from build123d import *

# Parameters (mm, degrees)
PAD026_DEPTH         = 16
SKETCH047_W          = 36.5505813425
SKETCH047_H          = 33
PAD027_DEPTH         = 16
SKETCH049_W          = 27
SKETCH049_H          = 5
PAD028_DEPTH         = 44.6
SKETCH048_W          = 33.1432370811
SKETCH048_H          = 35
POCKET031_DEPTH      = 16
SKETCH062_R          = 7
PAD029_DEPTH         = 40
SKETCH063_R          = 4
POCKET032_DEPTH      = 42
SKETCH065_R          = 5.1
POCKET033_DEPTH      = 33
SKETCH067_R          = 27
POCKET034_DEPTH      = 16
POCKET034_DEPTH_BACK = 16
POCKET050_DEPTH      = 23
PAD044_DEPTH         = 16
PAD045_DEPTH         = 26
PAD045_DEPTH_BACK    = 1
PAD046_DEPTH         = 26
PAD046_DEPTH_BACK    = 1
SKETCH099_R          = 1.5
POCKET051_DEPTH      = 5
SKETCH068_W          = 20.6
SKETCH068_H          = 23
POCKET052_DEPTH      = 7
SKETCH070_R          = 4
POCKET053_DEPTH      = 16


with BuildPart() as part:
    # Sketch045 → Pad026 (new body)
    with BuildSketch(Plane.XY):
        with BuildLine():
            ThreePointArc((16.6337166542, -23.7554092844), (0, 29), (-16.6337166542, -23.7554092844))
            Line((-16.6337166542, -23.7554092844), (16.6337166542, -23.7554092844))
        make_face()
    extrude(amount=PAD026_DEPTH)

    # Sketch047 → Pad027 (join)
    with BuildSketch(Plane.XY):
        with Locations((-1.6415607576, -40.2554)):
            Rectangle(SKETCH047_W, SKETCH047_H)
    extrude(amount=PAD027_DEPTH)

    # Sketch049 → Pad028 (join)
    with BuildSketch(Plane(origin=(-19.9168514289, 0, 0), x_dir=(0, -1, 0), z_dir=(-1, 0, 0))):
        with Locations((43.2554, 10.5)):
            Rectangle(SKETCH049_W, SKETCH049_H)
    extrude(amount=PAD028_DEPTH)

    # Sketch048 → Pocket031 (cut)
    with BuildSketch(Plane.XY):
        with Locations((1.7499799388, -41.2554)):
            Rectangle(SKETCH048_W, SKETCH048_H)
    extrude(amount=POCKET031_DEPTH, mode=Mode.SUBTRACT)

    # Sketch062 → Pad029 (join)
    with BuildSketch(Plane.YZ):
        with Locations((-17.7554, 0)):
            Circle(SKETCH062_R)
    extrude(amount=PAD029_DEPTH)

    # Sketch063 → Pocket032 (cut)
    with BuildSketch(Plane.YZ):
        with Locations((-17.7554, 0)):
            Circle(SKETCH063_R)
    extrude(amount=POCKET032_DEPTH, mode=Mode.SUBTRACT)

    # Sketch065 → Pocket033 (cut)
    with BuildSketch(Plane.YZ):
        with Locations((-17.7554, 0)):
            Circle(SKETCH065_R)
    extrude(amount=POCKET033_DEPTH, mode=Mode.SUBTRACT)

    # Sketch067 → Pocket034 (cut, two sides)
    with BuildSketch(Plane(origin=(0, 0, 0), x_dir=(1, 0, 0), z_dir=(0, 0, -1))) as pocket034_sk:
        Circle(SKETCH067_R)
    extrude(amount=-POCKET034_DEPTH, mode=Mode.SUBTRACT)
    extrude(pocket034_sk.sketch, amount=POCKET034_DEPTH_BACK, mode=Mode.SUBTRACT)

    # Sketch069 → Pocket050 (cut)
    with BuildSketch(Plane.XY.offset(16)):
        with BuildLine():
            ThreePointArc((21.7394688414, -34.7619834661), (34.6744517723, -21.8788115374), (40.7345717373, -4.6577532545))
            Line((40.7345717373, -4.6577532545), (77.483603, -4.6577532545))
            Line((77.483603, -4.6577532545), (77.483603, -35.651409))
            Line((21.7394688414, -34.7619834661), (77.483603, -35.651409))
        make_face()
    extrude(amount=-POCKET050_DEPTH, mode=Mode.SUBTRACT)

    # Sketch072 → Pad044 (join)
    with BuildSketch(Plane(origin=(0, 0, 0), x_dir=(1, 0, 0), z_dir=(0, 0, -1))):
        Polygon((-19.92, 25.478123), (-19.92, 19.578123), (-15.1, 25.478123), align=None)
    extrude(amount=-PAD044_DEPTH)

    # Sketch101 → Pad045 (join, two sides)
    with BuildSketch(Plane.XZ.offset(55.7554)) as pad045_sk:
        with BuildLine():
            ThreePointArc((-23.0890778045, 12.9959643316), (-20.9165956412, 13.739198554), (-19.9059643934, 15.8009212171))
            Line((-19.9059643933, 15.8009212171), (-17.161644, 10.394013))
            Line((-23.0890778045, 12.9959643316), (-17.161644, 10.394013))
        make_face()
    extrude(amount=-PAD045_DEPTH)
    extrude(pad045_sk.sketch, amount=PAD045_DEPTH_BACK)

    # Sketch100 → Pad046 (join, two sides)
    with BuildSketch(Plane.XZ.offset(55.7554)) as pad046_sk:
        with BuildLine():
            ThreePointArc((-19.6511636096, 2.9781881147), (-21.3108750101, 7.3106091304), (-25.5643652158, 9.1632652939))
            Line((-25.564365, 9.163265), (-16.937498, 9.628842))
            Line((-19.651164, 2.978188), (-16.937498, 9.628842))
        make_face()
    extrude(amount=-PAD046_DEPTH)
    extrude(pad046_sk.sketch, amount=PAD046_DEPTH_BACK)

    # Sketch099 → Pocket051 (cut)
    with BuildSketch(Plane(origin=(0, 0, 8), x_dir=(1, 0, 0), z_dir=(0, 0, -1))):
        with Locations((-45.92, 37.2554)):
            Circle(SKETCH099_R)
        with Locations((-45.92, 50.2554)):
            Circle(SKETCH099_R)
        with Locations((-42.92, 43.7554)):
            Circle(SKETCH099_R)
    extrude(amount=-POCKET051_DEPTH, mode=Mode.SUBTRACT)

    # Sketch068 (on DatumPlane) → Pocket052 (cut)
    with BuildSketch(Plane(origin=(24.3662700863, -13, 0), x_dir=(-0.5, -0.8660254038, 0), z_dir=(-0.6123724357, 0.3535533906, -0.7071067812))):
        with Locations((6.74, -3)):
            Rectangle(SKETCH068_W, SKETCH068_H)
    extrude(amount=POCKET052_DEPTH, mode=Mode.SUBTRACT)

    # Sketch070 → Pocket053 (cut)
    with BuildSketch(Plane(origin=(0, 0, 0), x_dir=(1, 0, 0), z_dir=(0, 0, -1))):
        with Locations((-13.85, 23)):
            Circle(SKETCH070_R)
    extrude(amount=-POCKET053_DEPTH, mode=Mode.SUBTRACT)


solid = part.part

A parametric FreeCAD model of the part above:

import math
import FreeCAD as App
import Part
import Sketcher
from FreeCAD import Vector

doc = App.newDocument("Part")
body = doc.addObject("PartDesign::Body", "Body")

# Sketch on XY plane
sketch1 = doc.addObject("Sketcher::SketchObject", "Sketch")
body.addObject(sketch1)
sketch1.AttachmentSupport = (doc.XY_Plane, [""])
sketch1.MapMode = "FlatFace"
sketch1.addGeometry(Part.ArcOfCircle(Part.Circle(Vector(0, 0, 0), Vector(0, 0, 1), 29), math.radians(-55), math.radians(235)), False)
sketch1.addGeometry(Part.LineSegment(Vector(-17, -24, 0), Vector(17, -24, 0)), False)
sketch1.addConstraint(Sketcher.Constraint("Coincident", 0, 1, 1, 2))
sketch1.addConstraint(Sketcher.Constraint("Coincident", 1, 1, 0, 2))
sketch1.addConstraint(Sketcher.Constraint("Horizontal", 1))
sketch1.addConstraint(Sketcher.Constraint("Coincident", 0, 3, -1, 1))
sketch1.addConstraint(Sketcher.Constraint("Radius", 0, 29.0))
sketch1.addConstraint(Sketcher.Constraint("DistanceX", 1, 1, 1, 2, 33.267433))
pad1 = doc.addObject("PartDesign::Pad", "Pad")
body.addObject(pad1)
pad1.Profile = sketch1
pad1.Length = 16

# Sketch on XY plane
sketch2 = doc.addObject("Sketcher::SketchObject", "Sketch001")
body.addObject(sketch2)
sketch2.AttachmentSupport = (doc.XY_Plane, [""])
sketch2.MapMode = "FlatFace"
sketch2.addGeometry(Part.LineSegment(Vector(-20, -24, 0), Vector(-20, -57, 0)), False)
sketch2.addGeometry(Part.LineSegment(Vector(-20, -57, 0), Vector(17, -57, 0)), False)
sketch2.addGeometry(Part.LineSegment(Vector(17, -57, 0), Vector(17, -24, 0)), False)
sketch2.addGeometry(Part.LineSegment(Vector(17, -24, 0), Vector(-20, -24, 0)), False)
sketch2.addConstraint(Sketcher.Constraint("Coincident", 0, 2, 1, 1))
sketch2.addConstraint(Sketcher.Constraint("Coincident", 1, 2, 2, 1))
sketch2.addConstraint(Sketcher.Constraint("Coincident", 2, 2, 3, 1))
sketch2.addConstraint(Sketcher.Constraint("Coincident", 3, 2, 0, 1))
sketch2.addConstraint(Sketcher.Constraint("Vertical", 0))
sketch2.addConstraint(Sketcher.Constraint("Horizontal", 1))
sketch2.addConstraint(Sketcher.Constraint("Vertical", 2))
sketch2.addConstraint(Sketcher.Constraint("Horizontal", 3))
sketch2.addConstraint(Sketcher.Constraint("DistanceY", 0, 2, 0, 1, 33.0))
sketch2.addConstraint(Sketcher.Constraint("DistanceX", 1, 1, 1, 2, 36.550581))
sketch2.addConstraint(Sketcher.Constraint("DistanceY", 0, 2, -1, 1, 56.7554))
sketch2.addConstraint(Sketcher.Constraint("DistanceX", 0, 2, -1, 1, 19.916851))
pad2 = doc.addObject("PartDesign::Pad", "Pad001")
body.addObject(pad2)
pad2.Profile = sketch2
pad2.Length = 16

# Sketch on YZ plane
sketch3 = doc.addObject("Sketcher::SketchObject", "Sketch002")
body.addObject(sketch3)
sketch3.AttachmentSupport = (doc.YZ_Plane, [""])
sketch3.MapMode = "FlatFace"
sketch3.AttachmentOffset = App.Placement(Vector(0, 0, -19.916851), App.Rotation())
sketch3.addGeometry(Part.LineSegment(Vector(-30, 13, 0), Vector(-30, 8, 0)), False)
sketch3.addGeometry(Part.LineSegment(Vector(-30, 8, 0), Vector(-57, 8, 0)), False)
sketch3.addGeometry(Part.LineSegment(Vector(-57, 8, 0), Vector(-57, 13, 0)), False)
sketch3.addGeometry(Part.LineSegment(Vector(-57, 13, 0), Vector(-30, 13, 0)), False)
sketch3.addConstraint(Sketcher.Constraint("Coincident", 0, 2, 1, 1))
sketch3.addConstraint(Sketcher.Constraint("Coincident", 1, 2, 2, 1))
sketch3.addConstraint(Sketcher.Constraint("Coincident", 2, 2, 3, 1))
sketch3.addConstraint(Sketcher.Constraint("Coincident", 3, 2, 0, 1))
sketch3.addConstraint(Sketcher.Constraint("Vertical", 0))
sketch3.addConstraint(Sketcher.Constraint("Horizontal", 1))
sketch3.addConstraint(Sketcher.Constraint("Vertical", 2))
sketch3.addConstraint(Sketcher.Constraint("Horizontal", 3))
sketch3.addConstraint(Sketcher.Constraint("DistanceX", 1, 2, 1, 1, 27.0))
sketch3.addConstraint(Sketcher.Constraint("DistanceY", 0, 2, 0, 1, 5.0))
sketch3.addConstraint(Sketcher.Constraint("DistanceY", -1, 1, 0, 2, 8.0))
sketch3.addConstraint(Sketcher.Constraint("DistanceX", 0, 2, -1, 1, 29.7554))
pad3 = doc.addObject("PartDesign::Pad", "Pad002")
body.addObject(pad3)
pad3.Profile = sketch3
pad3.Length = 44.6
pad3.Reversed = True

# Sketch on XY plane
sketch4 = doc.addObject("Sketcher::SketchObject", "Sketch003")
body.addObject(sketch4)
sketch4.AttachmentSupport = (doc.XY_Plane, [""])
sketch4.MapMode = "FlatFace"
sketch4.addGeometry(Part.LineSegment(Vector(-15, -24, 0), Vector(-15, -59, 0)), False)
sketch4.addGeometry(Part.LineSegment(Vector(-15, -59, 0), Vector(18, -59, 0)), False)
sketch4.addGeometry(Part.LineSegment(Vector(18, -59, 0), Vector(18, -24, 0)), False)
sketch4.addGeometry(Part.LineSegment(Vector(18, -24, 0), Vector(-15, -24, 0)), False)
sketch4.addConstraint(Sketcher.Constraint("Coincident", 0, 2, 1, 1))
sketch4.addConstraint(Sketcher.Constraint("Coincident", 1, 2, 2, 1))
sketch4.addConstraint(Sketcher.Constraint("Coincident", 2, 2, 3, 1))
sketch4.addConstraint(Sketcher.Constraint("Coincident", 3, 2, 0, 1))
sketch4.addConstraint(Sketcher.Constraint("Vertical", 0))
sketch4.addConstraint(Sketcher.Constraint("Horizontal", 1))
sketch4.addConstraint(Sketcher.Constraint("Vertical", 2))
sketch4.addConstraint(Sketcher.Constraint("Horizontal", 3))
sketch4.addConstraint(Sketcher.Constraint("DistanceY", 0, 2, 0, 1, 35.0))
sketch4.addConstraint(Sketcher.Constraint("DistanceY", 0, 2, -1, 1, 58.7554))
sketch4.addConstraint(Sketcher.Constraint("DistanceX", -1, 1, 1, 2, 18.321598))
sketch4.addConstraint(Sketcher.Constraint("DistanceX", 1, 1, 1, 2, 33.143237))
pocket1 = doc.addObject("PartDesign::Pocket", "Pocket")
body.addObject(pocket1)
pocket1.Profile = sketch4
pocket1.Length = 16
pocket1.Reversed = True

# Sketch on YZ plane
sketch5 = doc.addObject("Sketcher::SketchObject", "Sketch004")
body.addObject(sketch5)
sketch5.AttachmentSupport = (doc.YZ_Plane, [""])
sketch5.MapMode = "FlatFace"
sketch5.addGeometry(Part.Circle(Vector(-18, 0, 0), Vector(0, 0, 1), 7), False)
sketch5.addConstraint(Sketcher.Constraint("PointOnObject", 0, 3, -1))
sketch5.addConstraint(Sketcher.Constraint("Diameter", 0, 14.0))
sketch5.addConstraint(Sketcher.Constraint("DistanceX", 0, 3, -1, 1, 17.7554))
pad4 = doc.addObject("PartDesign::Pad", "Pad003")
body.addObject(pad4)
pad4.Profile = sketch5
pad4.Length = 40

# Sketch on YZ plane
sketch6 = doc.addObject("Sketcher::SketchObject", "Sketch005")
body.addObject(sketch6)
sketch6.AttachmentSupport = (doc.YZ_Plane, [""])
sketch6.MapMode = "FlatFace"
sketch6.addGeometry(Part.Circle(Vector(-17.8, 0, 0), Vector(0, 0, 1), 4), False)
sketch6.addConstraint(Sketcher.Constraint("PointOnObject", 0, 3, -1))
sketch6.addConstraint(Sketcher.Constraint("Diameter", 0, 8.0))
sketch6.addConstraint(Sketcher.Constraint("DistanceX", 0, 3, -1, 1, 17.7554))
pocket2 = doc.addObject("PartDesign::Pocket", "Pocket001")
body.addObject(pocket2)
pocket2.Profile = sketch6
pocket2.Length = 42
pocket2.Reversed = True

# Sketch on YZ plane
sketch7 = doc.addObject("Sketcher::SketchObject", "Sketch006")
body.addObject(sketch7)
sketch7.AttachmentSupport = (doc.YZ_Plane, [""])
sketch7.MapMode = "FlatFace"
sketch7.addGeometry(Part.Circle(Vector(-18, 0, 0), Vector(0, 0, 1), 5), False)
sketch7.addConstraint(Sketcher.Constraint("PointOnObject", 0, 3, -1))
sketch7.addConstraint(Sketcher.Constraint("Diameter", 0, 10.2))
sketch7.addConstraint(Sketcher.Constraint("DistanceX", 0, 3, -1, 1, 17.7554))
pocket3 = doc.addObject("PartDesign::Pocket", "Pocket002")
body.addObject(pocket3)
pocket3.Profile = sketch7
pocket3.Length = 33
pocket3.Reversed = True

# Sketch on XY plane
sketch8 = doc.addObject("Sketcher::SketchObject", "Sketch007")
body.addObject(sketch8)
sketch8.AttachmentSupport = (doc.XY_Plane, [""])
sketch8.MapMode = "FlatFace"
sketch8.addGeometry(Part.Circle(Vector(0, 0, 0), Vector(0, 0, 1), 27), False)
sketch8.addConstraint(Sketcher.Constraint("Coincident", 0, 3, -1, 1))
sketch8.addConstraint(Sketcher.Constraint("Diameter", 0, 54.0))
pocket4 = doc.addObject("PartDesign::Pocket", "Pocket003")
body.addObject(pocket4)
pocket4.Profile = sketch8
pocket4.Type = "ThroughAll"
pocket4.Midplane = True

# Sketch on XY plane
sketch9 = doc.addObject("Sketcher::SketchObject", "Sketch008")
body.addObject(sketch9)
sketch9.AttachmentSupport = (doc.XY_Plane, [""])
sketch9.MapMode = "FlatFace"
sketch9.AttachmentOffset = App.Placement(Vector(0, 0, 16), App.Rotation())
sketch9.addGeometry(Part.ArcOfCircle(Part.Circle(Vector(0, 0, 0), Vector(0, 0, 1), 41), math.radians(-58), math.radians(-7)), False)
sketch9.addGeometry(Part.LineSegment(Vector(22, -35, 0), Vector(77, -36, 0)), False)
sketch9.addGeometry(Part.LineSegment(Vector(77, -36, 0), Vector(77, -5, 0)), False)
sketch9.addGeometry(Part.LineSegment(Vector(77, -5, 0), Vector(41, -5, 0)), False)
sketch9.addConstraint(Sketcher.Constraint("Coincident", 0, 1, 1, 1))
sketch9.addConstraint(Sketcher.Constraint("Coincident", 1, 2, 2, 1))
sketch9.addConstraint(Sketcher.Constraint("Coincident", 2, 2, 3, 1))
sketch9.addConstraint(Sketcher.Constraint("Coincident", 3, 2, 0, 2))
sketch9.addConstraint(Sketcher.Constraint("Vertical", 2))
sketch9.addConstraint(Sketcher.Constraint("Horizontal", 3))
sketch9.addConstraint(Sketcher.Constraint("Coincident", 0, 3, -1, 1))
sketch9.addConstraint(Sketcher.Constraint("Radius", 0, 41.0))
sketch9.addConstraint(Sketcher.Constraint("DistanceX", 3, 2, 3, 1, 36.749031))
sketch9.addConstraint(Sketcher.Constraint("Distance", 1, 55.751229))
sketch9.addConstraint(Sketcher.Constraint("DistanceY", 2, 1, 2, 2, 30.993656))
sketch9.addConstraint(Sketcher.Constraint("DistanceY", 1, 2, -1, 1, 35.651409))
pocket5 = doc.addObject("PartDesign::Pocket", "Pocket004")
body.addObject(pocket5)
pocket5.Profile = sketch9
pocket5.Length = 23

# Sketch on XY plane
sketch10 = doc.addObject("Sketcher::SketchObject", "Sketch009")
body.addObject(sketch10)
sketch10.AttachmentSupport = (doc.XY_Plane, [""])
sketch10.MapMode = "FlatFace"
sketch10.addGeometry(Part.LineSegment(Vector(-19.9, -25.5, 0), Vector(-19.9, -19.6, 0)), False)
sketch10.addGeometry(Part.LineSegment(Vector(-19.9, -19.6, 0), Vector(-15.1, -25.5, 0)), False)
sketch10.addGeometry(Part.LineSegment(Vector(-15.1, -25.5, 0), Vector(-19.9, -25.5, 0)), False)
sketch10.addConstraint(Sketcher.Constraint("Coincident", 0, 2, 1, 1))
sketch10.addConstraint(Sketcher.Constraint("Coincident", 1, 2, 2, 1))
sketch10.addConstraint(Sketcher.Constraint("Coincident", 2, 2, 0, 1))
sketch10.addConstraint(Sketcher.Constraint("Vertical", 0))
sketch10.addConstraint(Sketcher.Constraint("Horizontal", 2))
sketch10.addConstraint(Sketcher.Constraint("DistanceY", 0, 1, 0, 2, 5.9))
sketch10.addConstraint(Sketcher.Constraint("DistanceX", 2, 2, 2, 1, 4.82))
sketch10.addConstraint(Sketcher.Constraint("DistanceX", 1, 2, -1, 1, 15.1))
sketch10.addConstraint(Sketcher.Constraint("DistanceY", 0, 2, -1, 1, 19.578123))
pad5 = doc.addObject("PartDesign::Pad", "Pad004")
body.addObject(pad5)
pad5.Profile = sketch10
pad5.Length = 16

# Sketch on XZ plane
sketch11 = doc.addObject("Sketcher::SketchObject", "Sketch010")
body.addObject(sketch11)
sketch11.AttachmentSupport = (doc.XZ_Plane, [""])
sketch11.MapMode = "FlatFace"
sketch11.AttachmentOffset = App.Placement(Vector(0, 0, 55.7554), App.Rotation())
sketch11.addGeometry(Part.ArcOfCircle(Part.Circle(Vector(-22.9, 16, 0), Vector(0, 0, 1), 3), math.radians(-94), math.radians(-4)), False)
sketch11.addGeometry(Part.LineSegment(Vector(-23.1, 13, 0), Vector(-17.2, 10.4, 0)), False)
sketch11.addGeometry(Part.LineSegment(Vector(-17.2, 10.4, 0), Vector(-19.9, 15.8, 0)), False)
sketch11.addConstraint(Sketcher.Constraint("Coincident", 0, 1, 1, 1))
sketch11.addConstraint(Sketcher.Constraint("Coincident", 1, 2, 2, 1))
sketch11.addConstraint(Sketcher.Constraint("Coincident", 2, 2, 0, 2))
sketch11.addConstraint(Sketcher.Constraint("Radius", 0, 3.0))
sketch11.addConstraint(Sketcher.Constraint("DistanceX", 0, 3, -1, 1, 22.9))
sketch11.addConstraint(Sketcher.Constraint("DistanceY", -1, 1, 0, 3, 15.99))
sketch11.addConstraint(Sketcher.Constraint("DistanceY", -1, 1, 2, 2, 15.800921))
sketch11.addConstraint(Sketcher.Constraint("DistanceY", 1, 2, 0, 1, 2.601951))
sketch11.addConstraint(Sketcher.Constraint("DistanceX", 2, 2, 1, 2, 2.74432))
sketch11.addConstraint(Sketcher.Constraint("DistanceY", 1, 2, 2, 2, 5.406908))
pad6 = doc.addObject("PartDesign::Pad", "Pad005")
body.addObject(pad6)
pad6.Profile = sketch11
pad6.Type = "TwoLengths"
pad6.Length = 26
pad6.Length2 = 1
pad6.Reversed = True

# Sketch on XZ plane
sketch12 = doc.addObject("Sketcher::SketchObject", "Sketch011")
body.addObject(sketch12)
sketch12.AttachmentSupport = (doc.XZ_Plane, [""])
sketch12.MapMode = "FlatFace"
sketch12.AttachmentOffset = App.Placement(Vector(0, 0, 55.7554), App.Rotation())
sketch12.addGeometry(Part.ArcOfCircle(Part.Circle(Vector(-26, 3, 0), Vector(0, 0, 1), 6), math.radians(-2), math.radians(89)), False)
sketch12.addGeometry(Part.LineSegment(Vector(-20, 3, 0), Vector(-17, 10, 0)), False)
sketch12.addGeometry(Part.LineSegment(Vector(-17, 10, 0), Vector(-26, 9, 0)), False)
sketch12.addConstraint(Sketcher.Constraint("Coincident", 0, 1, 1, 1))
sketch12.addConstraint(Sketcher.Constraint("Coincident", 1, 2, 2, 1))
sketch12.addConstraint(Sketcher.Constraint("Coincident", 2, 2, 0, 2))
sketch12.addConstraint(Sketcher.Constraint("Radius", 0, 5.998288))
sketch12.addConstraint(Sketcher.Constraint("DistanceX", 1, 2, -1, 1, 16.937498))
sketch12.addConstraint(Sketcher.Constraint("DistanceX", 2, 2, 0, 1, 5.913201))
sketch12.addConstraint(Sketcher.Constraint("Distance", 2, 8.639421))
sketch12.addConstraint(Sketcher.Constraint("DistanceY", -1, 1, 0, 3, 3.16554))
sketch12.addConstraint(Sketcher.Constraint("DistanceY", -1, 1, 0, 1, 2.978189))
sketch12.addConstraint(Sketcher.Constraint("Distance", 1, 7.182978))
pad7 = doc.addObject("PartDesign::Pad", "Pad006")
body.addObject(pad7)
pad7.Profile = sketch12
pad7.Type = "TwoLengths"
pad7.Length = 26
pad7.Length2 = 1
pad7.Reversed = True

# Sketch on XY plane
sketch13 = doc.addObject("Sketcher::SketchObject", "Sketch012")
body.addObject(sketch13)
sketch13.AttachmentSupport = (doc.XY_Plane, [""])
sketch13.MapMode = "FlatFace"
sketch13.AttachmentOffset = App.Placement(Vector(0, 0, 8), App.Rotation())
sketch13.addGeometry(Part.Circle(Vector(-45.9, -37.3, 0), Vector(0, 0, 1), 1.5), False)
sketch13.addGeometry(Part.Circle(Vector(-45.9, -50.3, 0), Vector(0, 0, 1), 1.5), False)
sketch13.addGeometry(Part.Circle(Vector(-42.9, -43.8, 0), Vector(0, 0, 1), 1.5), False)
sketch13.addConstraint(Sketcher.Constraint("Equal", 0, 1))
sketch13.addConstraint(Sketcher.Constraint("Equal", 1, 2))
sketch13.addConstraint(Sketcher.Constraint("Vertical", 0, 3, 1, 3))
sketch13.addConstraint(Sketcher.Constraint("Diameter", 0, 3.0))
sketch13.addConstraint(Sketcher.Constraint("DistanceY", 1, 3, 0, 3, 13.0))
sketch13.addConstraint(Sketcher.Constraint("DistanceX", 0, 3, 2, 3, 3.0))
sketch13.addConstraint(Sketcher.Constraint("DistanceY", 2, 3, 0, 3, 6.5))
sketch13.addConstraint(Sketcher.Constraint("DistanceX", 0, 3, -1, 1, 45.92))
sketch13.addConstraint(Sketcher.Constraint("DistanceY", 0, 3, -1, 1, 37.2554))
pocket6 = doc.addObject("PartDesign::Pocket", "Pocket005")
body.addObject(pocket6)
pocket6.Profile = sketch13
pocket6.Length = 5
pocket6.Reversed = True

# Sketch on an angled plane
sketch14 = doc.addObject("Sketcher::SketchObject", "Sketch013")
body.addObject(sketch14)
sketch14.Placement = App.Placement(Vector(24.36627, -13, 0), App.Rotation(Vector(-0.5, -0.866025404, 0), Vector(-0.612372436, 0.353553391, 0.707106782), Vector(-0.612372436, 0.353553391, -0.707106781), "ZXY"))
sketch14.addGeometry(Part.LineSegment(Vector(-4, 9, 0), Vector(-4, -15, 0)), False)
sketch14.addGeometry(Part.LineSegment(Vector(-4, -15, 0), Vector(17, -15, 0)), False)
sketch14.addGeometry(Part.LineSegment(Vector(17, -15, 0), Vector(17, 9, 0)), False)
sketch14.addGeometry(Part.LineSegment(Vector(17, 9, 0), Vector(-4, 9, 0)), False)
sketch14.addConstraint(Sketcher.Constraint("Coincident", 0, 2, 1, 1))
sketch14.addConstraint(Sketcher.Constraint("Coincident", 1, 2, 2, 1))
sketch14.addConstraint(Sketcher.Constraint("Coincident", 2, 2, 3, 1))
sketch14.addConstraint(Sketcher.Constraint("Coincident", 3, 2, 0, 1))
sketch14.addConstraint(Sketcher.Constraint("Vertical", 0))
sketch14.addConstraint(Sketcher.Constraint("Horizontal", 1))
sketch14.addConstraint(Sketcher.Constraint("Vertical", 2))
sketch14.addConstraint(Sketcher.Constraint("Horizontal", 3))
sketch14.addConstraint(Sketcher.Constraint("DistanceY", 0, 2, 0, 1, 23.0))
sketch14.addConstraint(Sketcher.Constraint("DistanceX", 1, 1, 1, 2, 20.6))
sketch14.addConstraint(Sketcher.Constraint("DistanceY", 0, 2, -1, 1, 14.5))
sketch14.addConstraint(Sketcher.Constraint("DistanceX", 0, 2, -1, 1, 3.56))
pocket7 = doc.addObject("PartDesign::Pocket", "Pocket006")
body.addObject(pocket7)
pocket7.Profile = sketch14
pocket7.Length = 7
pocket7.Reversed = True

# Sketch on XY plane
sketch15 = doc.addObject("Sketcher::SketchObject", "Sketch014")
body.addObject(sketch15)
sketch15.AttachmentSupport = (doc.XY_Plane, [""])
sketch15.MapMode = "FlatFace"
sketch15.addGeometry(Part.Circle(Vector(-13.8, -23, 0), Vector(0, 0, 1), 4), False)
sketch15.addConstraint(Sketcher.Constraint("Diameter", 0, 8.0))
sketch15.addConstraint(Sketcher.Constraint("DistanceY", 0, 3, -1, 1, 23.0))
sketch15.addConstraint(Sketcher.Constraint("DistanceX", 0, 3, -1, 1, 13.85))
pocket8 = doc.addObject("PartDesign::Pocket", "Pocket007")
body.addObject(pocket8)
pocket8.Profile = sketch15
pocket8.Length = 16
pocket8.Reversed = True

doc.recompute()
